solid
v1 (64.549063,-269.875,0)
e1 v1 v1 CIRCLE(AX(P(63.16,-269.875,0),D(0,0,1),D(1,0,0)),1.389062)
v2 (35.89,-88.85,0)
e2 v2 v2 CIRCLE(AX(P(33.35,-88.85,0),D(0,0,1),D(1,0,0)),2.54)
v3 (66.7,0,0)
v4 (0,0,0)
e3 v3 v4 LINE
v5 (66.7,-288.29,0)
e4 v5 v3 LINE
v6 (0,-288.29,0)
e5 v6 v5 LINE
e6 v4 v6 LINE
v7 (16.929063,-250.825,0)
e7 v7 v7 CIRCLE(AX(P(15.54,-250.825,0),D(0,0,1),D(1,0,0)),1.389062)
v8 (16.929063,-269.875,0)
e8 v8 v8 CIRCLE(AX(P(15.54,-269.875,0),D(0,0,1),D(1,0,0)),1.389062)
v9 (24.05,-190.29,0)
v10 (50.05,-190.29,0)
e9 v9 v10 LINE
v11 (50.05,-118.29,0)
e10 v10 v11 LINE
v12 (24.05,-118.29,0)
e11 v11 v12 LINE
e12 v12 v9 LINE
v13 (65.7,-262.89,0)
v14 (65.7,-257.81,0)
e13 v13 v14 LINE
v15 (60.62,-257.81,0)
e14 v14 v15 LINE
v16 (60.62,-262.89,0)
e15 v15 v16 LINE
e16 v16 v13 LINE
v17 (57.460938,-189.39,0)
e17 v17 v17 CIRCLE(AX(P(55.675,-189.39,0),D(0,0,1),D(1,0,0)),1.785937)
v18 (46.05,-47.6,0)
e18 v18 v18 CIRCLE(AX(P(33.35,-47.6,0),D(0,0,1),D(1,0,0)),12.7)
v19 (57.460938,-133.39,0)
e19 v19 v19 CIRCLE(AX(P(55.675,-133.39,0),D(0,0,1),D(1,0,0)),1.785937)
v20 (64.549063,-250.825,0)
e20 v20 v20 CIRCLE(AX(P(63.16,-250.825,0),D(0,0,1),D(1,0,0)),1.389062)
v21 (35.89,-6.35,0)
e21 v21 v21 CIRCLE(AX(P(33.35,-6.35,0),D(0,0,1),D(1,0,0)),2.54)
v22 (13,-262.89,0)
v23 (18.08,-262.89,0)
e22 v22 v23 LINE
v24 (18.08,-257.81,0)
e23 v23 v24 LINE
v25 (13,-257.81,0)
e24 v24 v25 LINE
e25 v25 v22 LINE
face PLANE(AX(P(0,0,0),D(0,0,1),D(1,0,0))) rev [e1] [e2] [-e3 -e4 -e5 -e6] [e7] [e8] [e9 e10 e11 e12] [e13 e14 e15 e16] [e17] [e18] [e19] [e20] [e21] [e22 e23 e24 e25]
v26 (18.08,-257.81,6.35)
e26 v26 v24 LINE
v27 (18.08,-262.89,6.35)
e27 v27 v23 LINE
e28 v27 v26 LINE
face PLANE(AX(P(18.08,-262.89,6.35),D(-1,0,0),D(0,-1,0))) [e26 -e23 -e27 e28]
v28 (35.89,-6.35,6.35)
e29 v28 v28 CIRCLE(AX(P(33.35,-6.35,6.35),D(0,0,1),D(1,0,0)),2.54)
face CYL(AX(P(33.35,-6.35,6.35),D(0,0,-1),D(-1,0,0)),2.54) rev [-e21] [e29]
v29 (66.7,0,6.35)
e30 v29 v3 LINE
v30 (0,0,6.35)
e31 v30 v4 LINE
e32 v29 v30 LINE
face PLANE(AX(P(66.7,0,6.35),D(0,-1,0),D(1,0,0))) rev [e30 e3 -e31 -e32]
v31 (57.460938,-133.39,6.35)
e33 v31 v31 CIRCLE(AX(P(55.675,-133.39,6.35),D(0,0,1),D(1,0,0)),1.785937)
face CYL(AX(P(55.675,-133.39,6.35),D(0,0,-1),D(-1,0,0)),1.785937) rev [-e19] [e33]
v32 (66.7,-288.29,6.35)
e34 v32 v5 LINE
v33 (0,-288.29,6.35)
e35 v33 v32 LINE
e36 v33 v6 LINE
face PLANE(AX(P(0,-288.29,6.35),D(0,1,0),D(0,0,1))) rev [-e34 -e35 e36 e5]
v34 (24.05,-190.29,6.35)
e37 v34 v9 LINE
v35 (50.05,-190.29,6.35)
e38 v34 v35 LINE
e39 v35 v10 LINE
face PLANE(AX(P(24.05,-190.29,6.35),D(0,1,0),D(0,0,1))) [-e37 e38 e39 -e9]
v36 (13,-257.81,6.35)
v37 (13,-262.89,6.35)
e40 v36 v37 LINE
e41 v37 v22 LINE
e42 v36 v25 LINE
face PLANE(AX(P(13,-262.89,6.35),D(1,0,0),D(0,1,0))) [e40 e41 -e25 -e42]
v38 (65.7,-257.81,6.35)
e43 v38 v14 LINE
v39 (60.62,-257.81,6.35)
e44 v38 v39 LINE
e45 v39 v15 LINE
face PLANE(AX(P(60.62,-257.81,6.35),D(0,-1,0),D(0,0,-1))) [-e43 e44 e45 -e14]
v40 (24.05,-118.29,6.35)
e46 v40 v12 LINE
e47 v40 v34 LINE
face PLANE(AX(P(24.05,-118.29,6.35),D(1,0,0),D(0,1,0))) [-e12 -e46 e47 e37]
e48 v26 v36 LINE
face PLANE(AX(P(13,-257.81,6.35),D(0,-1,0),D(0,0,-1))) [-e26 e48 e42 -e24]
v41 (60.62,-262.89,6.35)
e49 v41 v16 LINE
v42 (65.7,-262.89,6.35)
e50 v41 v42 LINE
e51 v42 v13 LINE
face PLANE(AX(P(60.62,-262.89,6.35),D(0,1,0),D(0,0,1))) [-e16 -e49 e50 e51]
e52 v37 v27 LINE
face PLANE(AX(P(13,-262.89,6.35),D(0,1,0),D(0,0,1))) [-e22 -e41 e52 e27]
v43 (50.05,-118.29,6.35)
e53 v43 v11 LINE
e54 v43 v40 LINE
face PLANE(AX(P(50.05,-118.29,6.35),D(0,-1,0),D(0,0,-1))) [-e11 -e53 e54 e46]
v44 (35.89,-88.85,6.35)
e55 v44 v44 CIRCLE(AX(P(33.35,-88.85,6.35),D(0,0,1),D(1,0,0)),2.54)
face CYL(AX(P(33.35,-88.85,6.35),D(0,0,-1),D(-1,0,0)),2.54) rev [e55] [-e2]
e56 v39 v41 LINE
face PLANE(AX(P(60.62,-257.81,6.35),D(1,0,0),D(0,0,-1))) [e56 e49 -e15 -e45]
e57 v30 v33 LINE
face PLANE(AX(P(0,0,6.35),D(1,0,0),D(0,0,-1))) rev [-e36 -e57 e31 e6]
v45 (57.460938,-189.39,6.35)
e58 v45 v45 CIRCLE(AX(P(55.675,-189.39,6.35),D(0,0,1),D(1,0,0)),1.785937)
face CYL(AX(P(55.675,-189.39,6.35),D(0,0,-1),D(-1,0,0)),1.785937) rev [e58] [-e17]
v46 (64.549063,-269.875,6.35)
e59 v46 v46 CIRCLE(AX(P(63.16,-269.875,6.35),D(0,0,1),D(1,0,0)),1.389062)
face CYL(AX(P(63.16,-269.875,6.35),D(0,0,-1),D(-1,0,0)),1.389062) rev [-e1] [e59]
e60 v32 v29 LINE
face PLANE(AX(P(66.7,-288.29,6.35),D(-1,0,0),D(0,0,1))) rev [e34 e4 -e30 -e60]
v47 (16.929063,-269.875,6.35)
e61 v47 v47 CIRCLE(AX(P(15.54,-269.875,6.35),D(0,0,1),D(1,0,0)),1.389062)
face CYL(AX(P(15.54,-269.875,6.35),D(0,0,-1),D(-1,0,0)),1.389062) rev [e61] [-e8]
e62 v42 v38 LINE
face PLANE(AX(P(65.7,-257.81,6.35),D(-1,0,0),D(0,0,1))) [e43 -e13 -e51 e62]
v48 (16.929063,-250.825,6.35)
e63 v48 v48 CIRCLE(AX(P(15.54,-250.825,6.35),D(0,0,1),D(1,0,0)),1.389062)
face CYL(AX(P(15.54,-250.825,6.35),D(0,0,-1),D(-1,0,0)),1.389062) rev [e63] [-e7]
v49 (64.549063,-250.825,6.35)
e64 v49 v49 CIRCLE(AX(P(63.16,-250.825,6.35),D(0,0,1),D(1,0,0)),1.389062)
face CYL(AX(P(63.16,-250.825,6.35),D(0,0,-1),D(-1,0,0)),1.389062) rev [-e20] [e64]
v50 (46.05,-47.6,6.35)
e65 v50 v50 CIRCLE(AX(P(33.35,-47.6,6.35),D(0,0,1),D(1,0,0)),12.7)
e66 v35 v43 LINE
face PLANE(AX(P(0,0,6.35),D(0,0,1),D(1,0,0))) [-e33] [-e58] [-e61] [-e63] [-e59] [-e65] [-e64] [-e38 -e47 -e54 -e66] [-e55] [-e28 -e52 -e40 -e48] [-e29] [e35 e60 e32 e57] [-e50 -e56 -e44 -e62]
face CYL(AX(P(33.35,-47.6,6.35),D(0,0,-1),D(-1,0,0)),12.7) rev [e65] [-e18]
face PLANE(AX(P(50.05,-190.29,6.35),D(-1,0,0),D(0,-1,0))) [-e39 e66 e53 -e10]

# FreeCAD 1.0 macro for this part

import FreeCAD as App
import Part
import Sketcher
from FreeCAD import Vector
Q = App.Units.Quantity


def add_polygon(sketch, points):
    """Adds a closed chain of lines whose ends are joined by coincident constraints."""
    first, n = sketch.GeometryCount, len(points)
    for a, b in zip(points, points[1:] + points[:1]):
        sketch.addGeometry(Part.LineSegment(App.Vector(*a, 0), App.Vector(*b, 0)), False)
    for i in range(n):
        sketch.addConstraint(Sketcher.Constraint("Coincident", first + i, 2, first + (i + 1) % n, 1))

doc = App.newDocument("Part")
params = doc.addObject("Spreadsheet::Sheet", "Params")
for row, (alias, value) in enumerate([
    ("sketch1_diameter", "1 in"),
    ("sketch1_diameter2", "0.2 in"),
    ("sketch1_diameter3", "0.109375 in"),
    ("sketch1_diameter4", "0.140625 in"),
    ("sketch1_width", "0.2 in"),
    ("pad1_length", "0.25 in"),
], start=1):
    params.set(f"A{row}", alias)
    params.set(f"B{row}", "=" + value)
    params.setAlias(f"B{row}", alias)

body = doc.addObject("PartDesign::Body", "Body")

# Sketch on XY plane
sketch1 = body.newObject("Sketcher::SketchObject", "Sketch")
sketch1.AttachmentSupport = (doc.getObject("XY_Plane"), [""])
sketch1.MapMode = "FlatFace"
add_polygon(sketch1, [(0, 0), (0, -288.3), (66.7, -288.3), (66.7, 0)])  # lines 0-3
sketch1.addGeometry(Part.Circle(Vector(15.5, -269.9, 0), Vector(0, 0, 1), 1.4), False)  # 4
add_polygon(sketch1, [(18.1, -262.9), (13, -262.9), (13, -257.8), (18.1, -257.8)])  # lines 5-8
sketch1.addGeometry(Part.Circle(Vector(15.5, -250.8, 0), Vector(0, 0, 1), 1.4), False)  # 9
add_polygon(sketch1, [(50, -190.3), (24.1, -190.3), (24.1, -118.3), (50, -118.3)])  # lines 10-13
sketch1.addGeometry(Part.Circle(Vector(63.2, -269.9, 0), Vector(0, 0, 1), 1.4), False)  # 14
add_polygon(sketch1, [(65.7, -262.9), (60.6, -262.9), (60.6, -257.8), (65.7, -257.8)])  # lines 15-18
sketch1.addGeometry(Part.Circle(Vector(63.2, -250.8, 0), Vector(0, 0, 1), 1.4), False)  # 19
sketch1.addGeometry(Part.Circle(Vector(55.7, -189.4, 0), Vector(0, 0, 1), 1.8), False)  # 20
sketch1.addGeometry(Part.Circle(Vector(33.4, -88.8, 0), Vector(0, 0, 1), 2.5), False)  # 21
sketch1.addGeometry(Part.Circle(Vector(33.4, -47.6, 0), Vector(0, 0, 1), 12.7), False)  # 22
sketch1.addGeometry(Part.Circle(Vector(33.4, -6.3, 0), Vector(0, 0, 1), 2.5), False)  # 23
sketch1.addGeometry(Part.Circle(Vector(55.7, -133.4, 0), Vector(0, 0, 1), 1.8), False)  # 24
sketch1.addConstraint([
    Sketcher.Constraint("Vertical", 0),
    Sketcher.Constraint("Horizontal", 1),
    Sketcher.Constraint("Vertical", 2),
    Sketcher.Constraint("Horizontal", 3),
    Sketcher.Constraint("Horizontal", 5),
    Sketcher.Constraint("Vertical", 6),
    Sketcher.Constraint("Horizontal", 7),
    Sketcher.Constraint("Vertical", 8),
    Sketcher.Constraint("Horizontal", 10),
    Sketcher.Constraint("Vertical", 11),
    Sketcher.Constraint("Horizontal", 12),
    Sketcher.Constraint("Vertical", 13),
    Sketcher.Constraint("Horizontal", 15),
    Sketcher.Constraint("Vertical", 16),
    Sketcher.Constraint("Horizontal", 17),
    Sketcher.Constraint("Vertical", 18),
    Sketcher.Constraint("Coincident", 3, 2, -1, 1),
    Sketcher.Constraint("Equal", 4, 9),
    Sketcher.Constraint("Equal", 9, 14),
    Sketcher.Constraint("Equal", 14, 19),
    Sketcher.Constraint("Equal", 21, 23),
    Sketcher.Constraint("Equal", 20, 24),
    Sketcher.Constraint("Horizontal", 4, 3, 14, 3),
    Sketcher.Constraint("Horizontal", 9, 3, 19, 3),
    Sketcher.Constraint("Horizontal", 8, 2, 15, 2),
    Sketcher.Constraint("Horizontal", 7, 2, 16, 2),
    Sketcher.Constraint("Vertical", 4, 3, 9, 3),
    Sketcher.Constraint("Vertical", 14, 3, 19, 3),
    Sketcher.Constraint("Vertical", 21, 3, 22, 3),
    Sketcher.Constraint("Vertical", 22, 3, 23, 3),
    Sketcher.Constraint("Vertical", 20, 3, 24, 3),
    Sketcher.Constraint("Equal", 7, 15),
    Sketcher.Constraint("Equal", 17, 6),
    Sketcher.Constraint("Diameter", 22, Q("1 in")),
    Sketcher.Constraint("Diameter", 21, Q("0.2 in")),
    Sketcher.Constraint("Diameter", 4, Q("0.109375 in")),
    Sketcher.Constraint("Diameter", 20, Q("0.140625 in")),
    Sketcher.Constraint("DistanceX", 5, 2, 5, 1, Q("0.2 in")),
    Sketcher.Constraint("DistanceY", 0, 2, 5, 2, Q("1 in")),
    Sketcher.Constraint("DistanceY", 0, 2, 0, 1, Q("11.35 in")),
    Sketcher.Constraint("DistanceX", 5, 2, 4, 3, Q("0.1 in")),
    Sketcher.Constraint("DistanceX", 15, 2, 14, 3, Q("0.1 in")),
    Sketcher.Constraint("DistanceY", 23, 3, -1, 1, Q("0.25 in")),
    Sketcher.Constraint("DistanceY", 4, 3, 9, 3, Q("0.75 in")),
    Sketcher.Constraint("DistanceY", 4, 3, -1, 1, Q("10.625 in")),
    Sketcher.Constraint("DistanceX", 1, 1, 1, 2, Q("66.7 mm")),
    Sketcher.Constraint("DistanceX", 10, 2, 10, 1, Q("26 mm")),
    Sketcher.Constraint("DistanceY", 11, 1, 11, 2, Q("72 mm")),
    Sketcher.Constraint("DistanceX", -1, 1, 4, 3, Q("15.54 mm")),
    Sketcher.Constraint("DistanceX", -1, 1, 14, 3, Q("63.16 mm")),
    Sketcher.Constraint("DistanceX", -1, 1, 20, 3, Q("55.675 mm")),
    Sketcher.Constraint("DistanceY", 20, 3, -1, 1, Q("189.39 mm")),
    Sketcher.Constraint("DistanceX", -1, 1, 21, 3, Q("33.35 mm")),
    Sketcher.Constraint("DistanceY", 21, 3, -1, 1, Q("88.85 mm")),
    Sketcher.Constraint("DistanceY", 22, 3, -1, 1, Q("47.6 mm")),
    Sketcher.Constraint("DistanceY", 24, 3, -1, 1, Q("133.39 mm")),
    Sketcher.Constraint("DistanceX", -1, 1, 10, 2, Q("24.05 mm")),
    Sketcher.Constraint("DistanceY", 10, 2, -1, 1, Q("190.29 mm")),
])
sketch1.setExpression("Constraints[49]", "Params.sketch1_diameter")
sketch1.setExpression("Constraints[50]", "Params.sketch1_diameter2")
sketch1.setExpression("Constraints[51]", "Params.sketch1_diameter3")
sketch1.setExpression("Constraints[52]", "Params.sketch1_diameter4")
sketch1.setExpression("Constraints[53]", "Params.sketch1_width")
pad1 = body.newObject("PartDesign::Pad", "Pad")
pad1.Profile = sketch1
pad1.setExpression("Length", "Params.pad1_length")

doc.recompute()
